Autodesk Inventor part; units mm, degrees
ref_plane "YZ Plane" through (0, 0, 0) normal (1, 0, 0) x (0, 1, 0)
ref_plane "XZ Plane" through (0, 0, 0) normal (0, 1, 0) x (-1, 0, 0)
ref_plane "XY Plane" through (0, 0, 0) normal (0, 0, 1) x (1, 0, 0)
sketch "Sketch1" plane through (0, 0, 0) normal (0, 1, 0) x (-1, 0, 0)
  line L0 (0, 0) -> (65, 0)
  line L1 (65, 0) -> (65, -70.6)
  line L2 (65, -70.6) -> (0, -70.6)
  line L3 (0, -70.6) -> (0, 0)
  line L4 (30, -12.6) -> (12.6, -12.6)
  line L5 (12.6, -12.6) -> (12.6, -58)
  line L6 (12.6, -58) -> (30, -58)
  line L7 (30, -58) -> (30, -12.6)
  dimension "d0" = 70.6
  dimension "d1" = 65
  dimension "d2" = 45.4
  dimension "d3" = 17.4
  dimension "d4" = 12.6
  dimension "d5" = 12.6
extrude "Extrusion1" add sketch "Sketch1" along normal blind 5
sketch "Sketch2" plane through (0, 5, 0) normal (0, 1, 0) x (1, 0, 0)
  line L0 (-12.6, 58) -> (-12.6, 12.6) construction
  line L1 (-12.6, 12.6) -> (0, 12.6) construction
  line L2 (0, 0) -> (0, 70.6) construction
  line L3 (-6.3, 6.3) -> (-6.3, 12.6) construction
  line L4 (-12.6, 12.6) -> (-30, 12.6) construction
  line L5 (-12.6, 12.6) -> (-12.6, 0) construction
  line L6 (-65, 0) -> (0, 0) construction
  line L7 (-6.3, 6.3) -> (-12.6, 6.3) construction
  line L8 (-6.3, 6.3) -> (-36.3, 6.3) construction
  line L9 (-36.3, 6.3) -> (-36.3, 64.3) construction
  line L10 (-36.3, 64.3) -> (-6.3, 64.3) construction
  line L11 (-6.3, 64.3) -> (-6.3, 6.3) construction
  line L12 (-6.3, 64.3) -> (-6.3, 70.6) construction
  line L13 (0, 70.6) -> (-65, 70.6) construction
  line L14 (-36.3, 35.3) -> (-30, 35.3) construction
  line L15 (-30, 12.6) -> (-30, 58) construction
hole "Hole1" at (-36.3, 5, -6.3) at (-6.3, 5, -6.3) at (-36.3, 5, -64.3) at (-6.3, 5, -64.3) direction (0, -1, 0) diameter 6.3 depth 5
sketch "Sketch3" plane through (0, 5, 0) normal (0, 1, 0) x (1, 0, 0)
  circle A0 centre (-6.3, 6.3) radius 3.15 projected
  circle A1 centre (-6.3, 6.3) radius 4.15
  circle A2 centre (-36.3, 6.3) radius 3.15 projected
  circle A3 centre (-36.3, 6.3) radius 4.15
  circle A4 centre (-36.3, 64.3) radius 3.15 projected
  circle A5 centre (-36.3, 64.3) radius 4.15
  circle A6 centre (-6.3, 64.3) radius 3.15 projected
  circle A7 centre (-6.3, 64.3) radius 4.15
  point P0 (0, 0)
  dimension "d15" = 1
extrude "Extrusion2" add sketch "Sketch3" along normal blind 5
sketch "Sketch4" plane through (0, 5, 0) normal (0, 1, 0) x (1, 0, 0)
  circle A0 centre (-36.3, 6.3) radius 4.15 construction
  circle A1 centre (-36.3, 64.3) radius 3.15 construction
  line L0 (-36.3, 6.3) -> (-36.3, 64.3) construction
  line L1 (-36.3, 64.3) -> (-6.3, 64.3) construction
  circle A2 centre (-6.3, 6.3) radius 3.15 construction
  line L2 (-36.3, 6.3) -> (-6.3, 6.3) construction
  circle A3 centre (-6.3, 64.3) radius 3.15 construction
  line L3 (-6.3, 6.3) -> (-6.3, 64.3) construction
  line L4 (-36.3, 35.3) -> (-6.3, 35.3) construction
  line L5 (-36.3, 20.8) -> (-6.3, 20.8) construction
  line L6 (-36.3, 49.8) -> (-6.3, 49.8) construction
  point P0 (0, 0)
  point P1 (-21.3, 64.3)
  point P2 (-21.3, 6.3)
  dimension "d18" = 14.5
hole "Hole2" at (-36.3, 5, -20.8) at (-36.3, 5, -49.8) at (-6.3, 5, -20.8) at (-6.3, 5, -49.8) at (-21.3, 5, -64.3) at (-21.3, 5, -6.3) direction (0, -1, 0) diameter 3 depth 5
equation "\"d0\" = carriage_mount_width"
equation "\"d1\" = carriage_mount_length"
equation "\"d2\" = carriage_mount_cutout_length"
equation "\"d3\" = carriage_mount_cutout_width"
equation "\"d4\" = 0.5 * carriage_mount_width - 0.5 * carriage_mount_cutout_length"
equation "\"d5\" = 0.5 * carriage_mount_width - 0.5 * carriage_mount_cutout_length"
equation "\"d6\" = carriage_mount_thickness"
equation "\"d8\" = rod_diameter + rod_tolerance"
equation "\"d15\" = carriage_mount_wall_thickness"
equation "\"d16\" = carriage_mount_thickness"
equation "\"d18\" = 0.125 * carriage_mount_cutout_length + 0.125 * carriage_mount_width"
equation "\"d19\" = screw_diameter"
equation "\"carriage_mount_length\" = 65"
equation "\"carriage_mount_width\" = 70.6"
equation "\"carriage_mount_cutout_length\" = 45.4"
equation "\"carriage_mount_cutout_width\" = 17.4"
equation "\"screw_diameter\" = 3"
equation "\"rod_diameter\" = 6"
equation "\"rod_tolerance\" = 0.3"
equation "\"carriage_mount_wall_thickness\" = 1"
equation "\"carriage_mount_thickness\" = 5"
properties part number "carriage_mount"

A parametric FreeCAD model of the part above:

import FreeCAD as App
import Part
import Sketcher

doc = App.newDocument("Part")
body = doc.addObject("PartDesign::Body", "Body")

# Sketch on XZ plane
sketch1 = body.newObject("Sketcher::SketchObject", "Sketch")
sketch1.AttachmentSupport = (doc.getObject("XZ_Plane"), [""])
sketch1.MapMode = "FlatFace"
sketch1.addGeometry(Part.LineSegment(App.Vector(-65, 0, 0), App.Vector(0, 0, 0)), False)
sketch1.addGeometry(Part.LineSegment(App.Vector(0, 0, 0), App.Vector(0, -71, 0)), False)
sketch1.addGeometry(Part.LineSegment(App.Vector(0, -71, 0), App.Vector(-65, -71, 0)), False)
sketch1.addGeometry(Part.LineSegment(App.Vector(-65, -71, 0), App.Vector(-65, 0, 0)), False)
sketch1.addGeometry(Part.LineSegment(App.Vector(-13, -13, 0), App.Vector(-30, -13, 0)), False)
sketch1.addGeometry(Part.LineSegment(App.Vector(-30, -13, 0), App.Vector(-30, -58, 0)), False)
sketch1.addGeometry(Part.LineSegment(App.Vector(-30, -58, 0), App.Vector(-13, -58, 0)), False)
sketch1.addGeometry(Part.LineSegment(App.Vector(-13, -58, 0), App.Vector(-13, -13, 0)), False)
sketch1.addConstraint(Sketcher.Constraint("Coincident", 0, 2, 1, 1))
sketch1.addConstraint(Sketcher.Constraint("Coincident", 1, 2, 2, 1))
sketch1.addConstraint(Sketcher.Constraint("Coincident", 2, 2, 3, 1))
sketch1.addConstraint(Sketcher.Constraint("Coincident", 3, 2, 0, 1))
sketch1.addConstraint(Sketcher.Constraint("Coincident", 4, 2, 5, 1))
sketch1.addConstraint(Sketcher.Constraint("Coincident", 5, 2, 6, 1))
sketch1.addConstraint(Sketcher.Constraint("Coincident", 6, 2, 7, 1))
sketch1.addConstraint(Sketcher.Constraint("Coincident", 7, 2, 4, 1))
sketch1.addConstraint(Sketcher.Constraint("Horizontal", 0))
sketch1.addConstraint(Sketcher.Constraint("Vertical", 1))
sketch1.addConstraint(Sketcher.Constraint("Horizontal", 2))
sketch1.addConstraint(Sketcher.Constraint("Vertical", 3))
sketch1.addConstraint(Sketcher.Constraint("Horizontal", 4))
sketch1.addConstraint(Sketcher.Constraint("Vertical", 5))
sketch1.addConstraint(Sketcher.Constraint("Horizontal", 6))
sketch1.addConstraint(Sketcher.Constraint("Vertical", 7))
sketch1.addConstraint(Sketcher.Constraint("Coincident", 0, 2, -1, 1))
sketch1.addConstraint(Sketcher.Constraint("DistanceX", 0, 1, 0, 2, 65.0))
sketch1.addConstraint(Sketcher.Constraint("DistanceX", 4, 2, 4, 1, 17.4))
sketch1.addConstraint(Sketcher.Constraint("DistanceY", 1, 2, 1, 1, 70.6))
sketch1.addConstraint(Sketcher.Constraint("DistanceY", 5, 2, 5, 1, 45.4))
sketch1.addConstraint(Sketcher.Constraint("DistanceY", 4, 2, -1, 1, 12.6))
sketch1.addConstraint(Sketcher.Constraint("DistanceX", 6, 2, -1, 1, 12.6))
pad1 = body.newObject("PartDesign::Pad", "Pad")
pad1.Profile = sketch1
pad1.Length = 5
pad1.Reversed = True

# Sketch on XZ plane
sketch2 = body.newObject("Sketcher::SketchObject", "Sketch001")
sketch2.AttachmentSupport = (doc.getObject("XZ_Plane"), [""])
sketch2.MapMode = "FlatFace"
sketch2.AttachmentOffset = App.Placement(App.Vector(0, 0, -5), App.Rotation())
sketch2.addGeometry(Part.Circle(App.Vector(-36.3, -6.3, 0), App.Vector(0, 0, 1), 3.1), False)
sketch2.addGeometry(Part.Circle(App.Vector(-6.3, -6.3, 0), App.Vector(0, 0, 1), 3.1), False)
sketch2.addGeometry(Part.Circle(App.Vector(-36.3, -64.3, 0), App.Vector(0, 0, 1), 3.1), False)
sketch2.addGeometry(Part.Circle(App.Vector(-6.3, -64.3, 0), App.Vector(0, 0, 1), 3.1), False)
sketch2.addConstraint(Sketcher.Constraint("Equal", 0, 1))
sketch2.addConstraint(Sketcher.Constraint("Equal", 1, 2))
sketch2.addConstraint(Sketcher.Constraint("Equal", 2, 3))
sketch2.addConstraint(Sketcher.Constraint("Horizontal", 0, 3, 1, 3))
sketch2.addConstraint(Sketcher.Constraint("Horizontal", 2, 3, 3, 3))
sketch2.addConstraint(Sketcher.Constraint("Vertical", 0, 3, 2, 3))
sketch2.addConstraint(Sketcher.Constraint("Vertical", 1, 3, 3, 3))
sketch2.addConstraint(Sketcher.Constraint("Diameter", 0, 6.3))
sketch2.addConstraint(Sketcher.Constraint("DistanceX", 0, 3, 1, 3, 30.0))
sketch2.addConstraint(Sketcher.Constraint("DistanceY", 2, 3, 0, 3, 58.0))
sketch2.addConstraint(Sketcher.Constraint("DistanceX", 0, 3, -1, 1, 36.3))
sketch2.addConstraint(Sketcher.Constraint("DistanceY", 0, 3, -1, 1, 6.3))
doc.recompute()
hole = body.newObject("PartDesign::Hole", "Hole")
hole.Profile = sketch2
hole.ThreadType = "None"
hole.Diameter = 6.3
hole.DepthType = "Dimension"
hole.Depth = 5
hole.DrillPoint = "Flat"
hole.Reversed = True

# Sketch on XZ plane
sketch3 = body.newObject("Sketcher::SketchObject", "Sketch002")
sketch3.AttachmentSupport = (doc.getObject("XZ_Plane"), [""])
sketch3.MapMode = "FlatFace"
sketch3.AttachmentOffset = App.Placement(App.Vector(0, 0, -5), App.Rotation())
sketch3.addGeometry(Part.Circle(App.Vector(-6.3, -6.3, 0), App.Vector(0, 0, 1), 4.2), False)
sketch3.addGeometry(Part.Circle(App.Vector(-6.3, -6.3, 0), App.Vector(0, 0, 1), 3.1), False)
sketch3.addGeometry(Part.Circle(App.Vector(-36.3, -6.3, 0), App.Vector(0, 0, 1), 4.2), False)
sketch3.addGeometry(Part.Circle(App.Vector(-36.3, -6.3, 0), App.Vector(0, 0, 1), 3.1), False)
sketch3.addGeometry(Part.Circle(App.Vector(-36.3, -64.3, 0), App.Vector(0, 0, 1), 4.2), False)
sketch3.addGeometry(Part.Circle(App.Vector(-36.3, -64.3, 0), App.Vector(0, 0, 1), 3.1), False)
sketch3.addGeometry(Part.Circle(App.Vector(-6.3, -64.3, 0), App.Vector(0, 0, 1), 4.2), False)
sketch3.addGeometry(Part.Circle(App.Vector(-6.3, -64.3, 0), App.Vector(0, 0, 1), 3.1), False)
sketch3.addConstraint(Sketcher.Constraint("Coincident", 1, 3, 0, 3))
sketch3.addConstraint(Sketcher.Constraint("Coincident", 3, 3, 2, 3))
sketch3.addConstraint(Sketcher.Constraint("Coincident", 5, 3, 4, 3))
sketch3.addConstraint(Sketcher.Constraint("Coincident", 7, 3, 6, 3))
sketch3.addConstraint(Sketcher.Constraint("Equal", 0, 2))
sketch3.addConstraint(Sketcher.Constraint("Equal", 1, 3))
sketch3.addConstraint(Sketcher.Constraint("Equal", 2, 4))
sketch3.addConstraint(Sketcher.Constraint("Equal", 3, 5))
sketch3.addConstraint(Sketcher.Constraint("Equal", 4, 6))
sketch3.addConstraint(Sketcher.Constraint("Equal", 5, 7))
sketch3.addConstraint(Sketcher.Constraint("Horizontal", 1, 3, 2, 3))
sketch3.addConstraint(Sketcher.Constraint("Horizontal", 5, 3, 6, 3))
sketch3.addConstraint(Sketcher.Constraint("Vertical", 3, 3, 4, 3))
sketch3.addConstraint(Sketcher.Constraint("Vertical", 1, 3, 6, 3))
sketch3.addConstraint(Sketcher.Constraint("Diameter", 0, 8.3))
sketch3.addConstraint(Sketcher.Constraint("Diameter", 1, 6.3))
sketch3.addConstraint(Sketcher.Constraint("DistanceX", 2, 3, 0, 3, 30.0))
sketch3.addConstraint(Sketcher.Constraint("DistanceY", 4, 3, 2, 3, 58.0))
sketch3.addConstraint(Sketcher.Constraint("DistanceX", 0, 3, -1, 1, 6.3))
sketch3.addConstraint(Sketcher.Constraint("DistanceY", 0, 3, -1, 1, 6.3))
pad2 = body.newObject("PartDesign::Pad", "Pad001")
pad2.Profile = sketch3
pad2.Length = 5
pad2.Reversed = True

# Sketch on XZ plane
sketch4 = body.newObject("Sketcher::SketchObject", "Sketch003")
sketch4.AttachmentSupport = (doc.getObject("XZ_Plane"), [""])
sketch4.MapMode = "FlatFace"
sketch4.AttachmentOffset = App.Placement(App.Vector(0, 0, -5), App.Rotation())
sketch4.addGeometry(Part.Circle(App.Vector(-36.3, -20.8, 0), App.Vector(0, 0, 1), 1.5), False)
sketch4.addGeometry(Part.Circle(App.Vector(-36.3, -49.8, 0), App.Vector(0, 0, 1), 1.5), False)
sketch4.addGeometry(Part.Circle(App.Vector(-6.3, -20.8, 0), App.Vector(0, 0, 1), 1.5), False)
sketch4.addGeometry(Part.Circle(App.Vector(-6.3, -49.8, 0), App.Vector(0, 0, 1), 1.5), False)
sketch4.addGeometry(Part.Circle(App.Vector(-21.3, -64.3, 0), App.Vector(0, 0, 1), 1.5), False)
sketch4.addGeometry(Part.Circle(App.Vector(-21.3, -6.3, 0), App.Vector(0, 0, 1), 1.5), False)
sketch4.addConstraint(Sketcher.Constraint("Equal", 0, 1))
sketch4.addConstraint(Sketcher.Constraint("Equal", 1, 2))
sketch4.addConstraint(Sketcher.Constraint("Equal", 2, 3))
sketch4.addConstraint(Sketcher.Constraint("Equal", 3, 4))
sketch4.addConstraint(Sketcher.Constraint("Equal", 4, 5))
sketch4.addConstraint(Sketcher.Constraint("Horizontal", 0, 3, 2, 3))
sketch4.addConstraint(Sketcher.Constraint("Horizontal", 1, 3, 3, 3))
sketch4.addConstraint(Sketcher.Constraint("Vertical", 0, 3, 1, 3))
sketch4.addConstraint(Sketcher.Constraint("Vertical", 2, 3, 3, 3))
sketch4.addConstraint(Sketcher.Constraint("Vertical", 4, 3, 5, 3))
sketch4.addConstraint(Sketcher.Constraint("Diameter", 0, 3.0))
sketch4.addConstraint(Sketcher.Constraint("DistanceY", 1, 3, 0, 3, 29.0))
sketch4.addConstraint(Sketcher.Constraint("DistanceX", 0, 3, 2, 3, 30.0))
sketch4.addConstraint(Sketcher.Constraint("DistanceX", 1, 3, 4, 3, 15.0))
sketch4.addConstraint(Sketcher.Constraint("DistanceY", 4, 3, 5, 3, 58.0))
sketch4.addConstraint(Sketcher.Constraint("DistanceX", 0, 3, -1, 1, 36.3))
sketch4.addConstraint(Sketcher.Constraint("DistanceY", 0, 3, -1, 1, 20.8))
sketch4.addConstraint(Sketcher.Constraint("DistanceY", 4, 3, -1, 1, 64.3))
doc.recompute()
hole2 = body.newObject("PartDesign::Hole", "Hole001")
hole2.Profile = sketch4
hole2.ThreadType = "None"
hole2.Diameter = 3
hole2.DepthType = "Dimension"
hole2.Depth = 5
hole2.DrillPoint = "Flat"
hole2.Reversed = True

doc.recompute()
